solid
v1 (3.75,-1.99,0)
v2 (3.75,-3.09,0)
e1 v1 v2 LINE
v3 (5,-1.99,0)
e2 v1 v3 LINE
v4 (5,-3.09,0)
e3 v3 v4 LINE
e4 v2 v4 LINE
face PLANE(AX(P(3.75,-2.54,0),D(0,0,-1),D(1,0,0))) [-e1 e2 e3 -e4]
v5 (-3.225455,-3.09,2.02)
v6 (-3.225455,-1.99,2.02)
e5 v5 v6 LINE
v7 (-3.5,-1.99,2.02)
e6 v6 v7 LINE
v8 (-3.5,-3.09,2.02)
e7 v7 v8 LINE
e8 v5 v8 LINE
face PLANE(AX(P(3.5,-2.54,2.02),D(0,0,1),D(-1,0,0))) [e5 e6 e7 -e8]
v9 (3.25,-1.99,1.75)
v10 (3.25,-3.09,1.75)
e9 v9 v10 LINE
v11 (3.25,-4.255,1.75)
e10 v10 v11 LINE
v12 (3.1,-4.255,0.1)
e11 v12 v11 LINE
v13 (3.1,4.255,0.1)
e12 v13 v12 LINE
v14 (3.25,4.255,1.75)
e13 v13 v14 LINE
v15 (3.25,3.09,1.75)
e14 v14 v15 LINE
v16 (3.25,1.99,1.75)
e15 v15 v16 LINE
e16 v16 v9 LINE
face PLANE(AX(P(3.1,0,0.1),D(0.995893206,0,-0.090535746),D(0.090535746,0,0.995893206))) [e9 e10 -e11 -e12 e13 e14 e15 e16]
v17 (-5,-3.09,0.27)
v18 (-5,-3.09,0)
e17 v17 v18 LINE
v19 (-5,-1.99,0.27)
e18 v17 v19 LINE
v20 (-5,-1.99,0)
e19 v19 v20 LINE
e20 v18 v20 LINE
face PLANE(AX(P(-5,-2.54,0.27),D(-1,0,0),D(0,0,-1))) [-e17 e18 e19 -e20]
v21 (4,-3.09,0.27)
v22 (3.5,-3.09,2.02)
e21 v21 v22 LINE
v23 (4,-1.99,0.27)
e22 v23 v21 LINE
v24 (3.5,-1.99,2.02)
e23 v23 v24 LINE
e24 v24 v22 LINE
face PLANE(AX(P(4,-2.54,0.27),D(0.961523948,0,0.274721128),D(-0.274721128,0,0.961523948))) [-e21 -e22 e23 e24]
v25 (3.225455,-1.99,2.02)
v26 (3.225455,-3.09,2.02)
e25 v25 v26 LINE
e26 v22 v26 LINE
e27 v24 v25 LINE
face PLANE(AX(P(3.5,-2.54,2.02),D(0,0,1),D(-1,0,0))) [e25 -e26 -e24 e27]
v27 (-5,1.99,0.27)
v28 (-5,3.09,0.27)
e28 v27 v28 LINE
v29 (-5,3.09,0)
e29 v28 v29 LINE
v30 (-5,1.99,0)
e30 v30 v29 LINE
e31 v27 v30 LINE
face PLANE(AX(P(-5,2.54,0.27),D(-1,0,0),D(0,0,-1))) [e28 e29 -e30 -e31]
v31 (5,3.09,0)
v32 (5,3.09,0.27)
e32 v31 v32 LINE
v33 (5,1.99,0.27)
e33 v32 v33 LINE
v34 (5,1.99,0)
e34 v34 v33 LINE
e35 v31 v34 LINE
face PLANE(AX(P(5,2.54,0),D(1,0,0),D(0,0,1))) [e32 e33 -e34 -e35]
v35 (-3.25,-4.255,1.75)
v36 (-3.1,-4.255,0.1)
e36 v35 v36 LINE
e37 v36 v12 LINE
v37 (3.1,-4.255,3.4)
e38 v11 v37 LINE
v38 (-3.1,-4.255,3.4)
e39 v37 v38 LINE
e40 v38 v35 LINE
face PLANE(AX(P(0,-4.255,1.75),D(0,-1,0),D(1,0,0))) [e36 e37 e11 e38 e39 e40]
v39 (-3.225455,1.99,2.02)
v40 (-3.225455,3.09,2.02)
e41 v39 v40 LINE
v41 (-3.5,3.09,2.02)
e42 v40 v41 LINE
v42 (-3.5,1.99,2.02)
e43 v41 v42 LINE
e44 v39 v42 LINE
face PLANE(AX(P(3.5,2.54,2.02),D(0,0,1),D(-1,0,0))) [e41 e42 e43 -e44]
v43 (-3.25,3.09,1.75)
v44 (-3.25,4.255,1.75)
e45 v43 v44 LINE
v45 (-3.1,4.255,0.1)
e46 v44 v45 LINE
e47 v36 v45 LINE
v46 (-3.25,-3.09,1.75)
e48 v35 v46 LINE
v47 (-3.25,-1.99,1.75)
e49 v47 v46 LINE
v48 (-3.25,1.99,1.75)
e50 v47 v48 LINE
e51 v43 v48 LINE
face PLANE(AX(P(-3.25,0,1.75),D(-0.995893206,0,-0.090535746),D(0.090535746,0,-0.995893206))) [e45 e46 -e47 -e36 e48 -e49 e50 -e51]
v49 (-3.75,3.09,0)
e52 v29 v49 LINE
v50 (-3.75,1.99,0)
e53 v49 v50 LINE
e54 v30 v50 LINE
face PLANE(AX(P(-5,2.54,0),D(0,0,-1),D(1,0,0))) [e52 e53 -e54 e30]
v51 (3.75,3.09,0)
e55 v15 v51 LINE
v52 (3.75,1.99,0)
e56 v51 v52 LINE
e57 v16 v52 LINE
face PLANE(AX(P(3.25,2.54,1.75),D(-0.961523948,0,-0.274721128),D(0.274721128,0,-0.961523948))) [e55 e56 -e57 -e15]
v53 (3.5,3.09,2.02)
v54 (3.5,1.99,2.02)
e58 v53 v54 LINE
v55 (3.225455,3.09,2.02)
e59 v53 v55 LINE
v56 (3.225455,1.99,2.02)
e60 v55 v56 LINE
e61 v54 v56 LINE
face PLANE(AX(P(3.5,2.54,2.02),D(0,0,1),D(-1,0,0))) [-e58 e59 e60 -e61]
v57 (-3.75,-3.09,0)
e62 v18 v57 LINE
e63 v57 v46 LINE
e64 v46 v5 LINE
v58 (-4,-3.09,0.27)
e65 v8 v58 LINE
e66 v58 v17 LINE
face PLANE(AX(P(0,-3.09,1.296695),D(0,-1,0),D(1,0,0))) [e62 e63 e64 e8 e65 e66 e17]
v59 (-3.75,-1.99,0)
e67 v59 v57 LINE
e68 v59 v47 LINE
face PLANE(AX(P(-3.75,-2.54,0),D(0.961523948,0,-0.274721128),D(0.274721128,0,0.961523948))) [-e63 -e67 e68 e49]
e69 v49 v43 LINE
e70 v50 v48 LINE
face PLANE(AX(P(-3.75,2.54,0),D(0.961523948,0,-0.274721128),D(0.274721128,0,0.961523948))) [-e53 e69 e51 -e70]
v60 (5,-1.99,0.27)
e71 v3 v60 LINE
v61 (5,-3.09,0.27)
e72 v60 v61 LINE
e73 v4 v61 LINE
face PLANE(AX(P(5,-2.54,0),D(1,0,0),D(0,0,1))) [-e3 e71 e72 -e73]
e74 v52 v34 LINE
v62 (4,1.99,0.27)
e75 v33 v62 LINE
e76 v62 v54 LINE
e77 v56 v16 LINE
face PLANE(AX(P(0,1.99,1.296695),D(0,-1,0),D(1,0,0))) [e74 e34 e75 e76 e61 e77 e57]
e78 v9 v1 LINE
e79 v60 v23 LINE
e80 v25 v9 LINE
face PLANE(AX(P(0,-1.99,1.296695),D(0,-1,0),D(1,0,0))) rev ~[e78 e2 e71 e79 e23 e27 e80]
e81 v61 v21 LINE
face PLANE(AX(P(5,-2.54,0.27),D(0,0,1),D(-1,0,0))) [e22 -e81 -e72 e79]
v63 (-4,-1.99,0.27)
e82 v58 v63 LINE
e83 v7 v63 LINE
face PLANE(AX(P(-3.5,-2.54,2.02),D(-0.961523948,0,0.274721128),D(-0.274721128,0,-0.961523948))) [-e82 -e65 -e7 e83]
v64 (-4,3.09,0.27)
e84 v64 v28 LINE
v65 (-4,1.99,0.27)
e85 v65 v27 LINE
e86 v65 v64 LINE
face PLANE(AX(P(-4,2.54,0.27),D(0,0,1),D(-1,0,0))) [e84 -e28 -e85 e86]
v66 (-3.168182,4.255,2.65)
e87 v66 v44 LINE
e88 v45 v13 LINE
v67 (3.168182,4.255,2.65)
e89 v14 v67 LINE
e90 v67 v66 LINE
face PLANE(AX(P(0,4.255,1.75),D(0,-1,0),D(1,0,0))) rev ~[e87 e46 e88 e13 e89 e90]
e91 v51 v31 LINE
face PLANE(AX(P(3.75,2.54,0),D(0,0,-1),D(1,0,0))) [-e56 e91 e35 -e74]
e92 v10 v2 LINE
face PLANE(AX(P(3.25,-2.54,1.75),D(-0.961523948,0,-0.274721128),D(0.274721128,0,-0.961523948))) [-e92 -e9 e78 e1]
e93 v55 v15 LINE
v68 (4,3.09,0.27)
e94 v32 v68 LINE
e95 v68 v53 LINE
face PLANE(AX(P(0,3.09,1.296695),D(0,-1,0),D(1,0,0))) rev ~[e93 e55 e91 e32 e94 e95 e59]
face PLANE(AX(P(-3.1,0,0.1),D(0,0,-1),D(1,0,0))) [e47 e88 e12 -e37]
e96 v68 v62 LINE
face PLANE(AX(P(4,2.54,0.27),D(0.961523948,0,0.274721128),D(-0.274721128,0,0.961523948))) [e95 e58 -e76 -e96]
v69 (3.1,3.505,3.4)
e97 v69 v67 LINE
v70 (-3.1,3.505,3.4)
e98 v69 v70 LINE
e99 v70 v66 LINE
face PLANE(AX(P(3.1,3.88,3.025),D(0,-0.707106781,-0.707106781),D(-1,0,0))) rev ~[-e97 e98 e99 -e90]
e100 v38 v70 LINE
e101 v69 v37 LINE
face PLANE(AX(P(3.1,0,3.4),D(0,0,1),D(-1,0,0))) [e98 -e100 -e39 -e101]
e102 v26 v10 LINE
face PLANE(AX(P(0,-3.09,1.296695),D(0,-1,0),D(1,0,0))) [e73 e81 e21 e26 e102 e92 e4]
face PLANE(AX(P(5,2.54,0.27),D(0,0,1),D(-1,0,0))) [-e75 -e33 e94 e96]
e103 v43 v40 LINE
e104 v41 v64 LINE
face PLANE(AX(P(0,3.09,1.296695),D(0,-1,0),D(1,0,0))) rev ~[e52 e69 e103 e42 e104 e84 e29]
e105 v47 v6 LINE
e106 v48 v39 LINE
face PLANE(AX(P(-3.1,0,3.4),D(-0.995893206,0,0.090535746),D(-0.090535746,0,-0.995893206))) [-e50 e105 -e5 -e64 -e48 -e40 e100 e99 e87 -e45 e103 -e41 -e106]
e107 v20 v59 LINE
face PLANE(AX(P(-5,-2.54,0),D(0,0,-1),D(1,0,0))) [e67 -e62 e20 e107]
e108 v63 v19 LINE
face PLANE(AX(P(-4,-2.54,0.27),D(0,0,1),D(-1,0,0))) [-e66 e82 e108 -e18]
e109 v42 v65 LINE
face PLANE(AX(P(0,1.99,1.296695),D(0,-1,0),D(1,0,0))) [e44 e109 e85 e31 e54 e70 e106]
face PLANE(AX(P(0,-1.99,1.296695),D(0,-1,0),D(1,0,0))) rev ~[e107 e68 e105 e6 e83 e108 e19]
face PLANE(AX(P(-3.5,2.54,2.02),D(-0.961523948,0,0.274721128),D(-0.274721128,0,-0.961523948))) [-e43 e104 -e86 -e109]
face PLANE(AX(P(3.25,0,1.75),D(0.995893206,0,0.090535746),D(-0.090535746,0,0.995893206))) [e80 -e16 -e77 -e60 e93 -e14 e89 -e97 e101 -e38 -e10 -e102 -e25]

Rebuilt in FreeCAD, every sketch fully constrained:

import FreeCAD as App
import Part
import Sketcher


def edges_at(feature, points):
    """Names of the edges that pass closest to the given points."""
    edges = feature.Shape.Edges
    near = lambda p: min(range(len(edges)), key=lambda i: edges[i].distToShape(Part.Vertex(*p))[0])
    return sorted({f"Edge{near(p) + 1}" for p in points})


def add_polygon(sketch, points):
    """Adds a closed chain of lines whose ends are joined by coincident constraints."""
    first, n = sketch.GeometryCount, len(points)
    for a, b in zip(points, points[1:] + points[:1]):
        sketch.addGeometry(Part.LineSegment(App.Vector(*a, 0), App.Vector(*b, 0)), False)
    for i in range(n):
        sketch.addConstraint(Sketcher.Constraint("Coincident", first + i, 2, first + (i + 1) % n, 1))

doc = App.newDocument("Part")
body = doc.addObject("PartDesign::Body", "Body")

sketch1 = doc.addObject("Sketcher::SketchObject", "Sketch")
body.addObject(sketch1)
sketch1.AttachmentSupport = (doc.XZ_Plane, [""])
sketch1.MapMode = "FlatFace"
sketch1.AttachmentOffset = App.Placement(App.Vector(0, 0, 2.54), App.Rotation())
add_polygon(sketch1, [(-5, 0), (-3.75, 0), (-3.25, 1.75), (3.25, 1.75), (3.75, 0), (5, 0), (5, 0.27), (4, 0.27), (3.5, 2.02), (-3.5, 2.02), (-4, 0.27), (-5, 0.27)])
sketch1.addConstraint(Sketcher.Constraint("Horizontal", 0))
sketch1.addConstraint(Sketcher.Constraint("Horizontal", 2))
sketch1.addConstraint(Sketcher.Constraint("Horizontal", 4))
sketch1.addConstraint(Sketcher.Constraint("Vertical", 5))
sketch1.addConstraint(Sketcher.Constraint("Horizontal", 6))
sketch1.addConstraint(Sketcher.Constraint("Horizontal", 8))
sketch1.addConstraint(Sketcher.Constraint("Horizontal", 10))
sketch1.addConstraint(Sketcher.Constraint("Vertical", 11))
sketch1.addConstraint(Sketcher.Constraint("Symmetric", 0, 2, 3, 2, -1, 1))
sketch1.addConstraint(Sketcher.Constraint("Symmetric", 6, 2, 9, 2, -2))
sketch1.addConstraint(Sketcher.Constraint("Symmetric", 4, 2, 11, 2, -2))
sketch1.addConstraint(Sketcher.Constraint("Parallel", 3, 7))
sketch1.addConstraint(Sketcher.Constraint("Parallel", 1, 9))
sketch1.addConstraint(Sketcher.Constraint("Equal", 1, 3))
sketch1.addConstraint(Sketcher.Constraint("Equal", 3, 7))
sketch1.addConstraint(Sketcher.Constraint("DistanceX", 6, 2, 6, 1, 1.0))
sketch1.addConstraint(Sketcher.Constraint("DistanceX", 8, 2, 8, 1, 7.0))
sketch1.addConstraint(Sketcher.Constraint("DistanceX", 2, 1, 2, 2, 6.5))
sketch1.addConstraint(Sketcher.Constraint("DistanceX", -1, 1, 4, 2, 5.0))
sketch1.addConstraint(Sketcher.Constraint("DistanceY", 5, 1, 5, 2, 0.27))
sketch1.addConstraint(Sketcher.Constraint("DistanceY", -1, 1, 1, 2, 1.75))
pad1 = doc.addObject("PartDesign::Pad", "Pad")
body.addObject(pad1)
pad1.Profile = sketch1
pad1.Length = 1.1
pad1.Midplane = True
body2 = doc.addObject("PartDesign::Body", "Body001")

sketch2 = doc.addObject("Sketcher::SketchObject", "Sketch001")
body2.addObject(sketch2)
sketch2.AttachmentSupport = (doc.getObject("XZ_Plane001"), [""])
sketch2.MapMode = "FlatFace"
sketch2.AttachmentOffset = App.Placement(App.Vector(0, 0, -2.54), App.Rotation())
add_polygon(sketch2, [(-5, 0), (-3.75, 0), (-3.25, 1.75), (3.25, 1.75), (3.75, 0), (5, 0), (5, 0.27), (4, 0.27), (3.5, 2.02), (-3.5, 2.02), (-4, 0.27), (-5, 0.27)])
sketch2.addConstraint(Sketcher.Constraint("Horizontal", 0))
sketch2.addConstraint(Sketcher.Constraint("Horizontal", 2))
sketch2.addConstraint(Sketcher.Constraint("Horizontal", 4))
sketch2.addConstraint(Sketcher.Constraint("Vertical", 5))
sketch2.addConstraint(Sketcher.Constraint("Horizontal", 6))
sketch2.addConstraint(Sketcher.Constraint("Horizontal", 8))
sketch2.addConstraint(Sketcher.Constraint("Horizontal", 10))
sketch2.addConstraint(Sketcher.Constraint("Vertical", 11))
sketch2.addConstraint(Sketcher.Constraint("Symmetric", 0, 2, 3, 2, -1, 1))
sketch2.addConstraint(Sketcher.Constraint("Symmetric", 6, 2, 9, 2, -2))
sketch2.addConstraint(Sketcher.Constraint("Symmetric", 4, 2, 11, 2, -2))
sketch2.addConstraint(Sketcher.Constraint("Parallel", 3, 7))
sketch2.addConstraint(Sketcher.Constraint("Parallel", 1, 9))
sketch2.addConstraint(Sketcher.Constraint("Equal", 1, 3))
sketch2.addConstraint(Sketcher.Constraint("Equal", 3, 7))
sketch2.addConstraint(Sketcher.Constraint("DistanceX", 6, 2, 6, 1, 1.0))
sketch2.addConstraint(Sketcher.Constraint("DistanceX", 8, 2, 8, 1, 7.0))
sketch2.addConstraint(Sketcher.Constraint("DistanceX", 2, 1, 2, 2, 6.5))
sketch2.addConstraint(Sketcher.Constraint("DistanceX", -1, 1, 4, 2, 5.0))
sketch2.addConstraint(Sketcher.Constraint("DistanceY", 5, 1, 5, 2, 0.27))
sketch2.addConstraint(Sketcher.Constraint("DistanceY", -1, 1, 1, 2, 1.75))
pad2 = doc.addObject("PartDesign::Pad", "Pad001")
body2.addObject(pad2)
pad2.Profile = sketch2
pad2.Length = 1.1
pad2.Midplane = True
body3 = doc.addObject("PartDesign::Body", "Body002")

sketch3 = doc.addObject("Sketcher::SketchObject", "Sketch002")
body3.addObject(sketch3)
sketch3.AttachmentSupport = (doc.getObject("XZ_Plane002"), [""])
sketch3.MapMode = "FlatFace"
add_polygon(sketch3, [(-3.1, 0.1), (3.1, 0.1), (3.2, 1.8), (3.1, 3.4), (-3.1, 3.4), (-3.2, 1.8)])
sketch3.addConstraint(Sketcher.Constraint("Horizontal", 0))
sketch3.addConstraint(Sketcher.Constraint("Horizontal", 3))
sketch3.addConstraint(Sketcher.Constraint("Symmetric", 1, 2, 4, 2, -2))
sketch3.addConstraint(Sketcher.Constraint("Parallel", 1, 4))
sketch3.addConstraint(Sketcher.Constraint("Parallel", 2, 5))
sketch3.addConstraint(Sketcher.Constraint("Vertical", 0, 2, 2, 2))
sketch3.addConstraint(Sketcher.Constraint("Vertical", 3, 2, 5, 2))
sketch3.addConstraint(Sketcher.Constraint("DistanceX", 0, 1, 0, 2, 6.2))
sketch3.addConstraint(Sketcher.Constraint("DistanceY", -1, 1, 0, 2, 0.1))
sketch3.addConstraint(Sketcher.Constraint("DistanceY", -1, 1, 2, 2, 3.4))
sketch3.addConstraint(Sketcher.Constraint("DistanceX", 4, 2, 1, 2, 6.5))
pad3 = doc.addObject("PartDesign::Pad", "Pad002")
body3.addObject(pad3)
pad3.Profile = sketch3
pad3.Length = 8.51
pad3.Midplane = True
doc.recompute()

chamfer = doc.addObject("PartDesign::Chamfer", "Chamfer")
body3.addObject(chamfer)
chamfer.Base = (pad3, edges_at(pad3, [(0, 4.255, 3.4)]))
chamfer.Size = 0.75
doc.recompute()

boolean = doc.addObject("PartDesign::Boolean", "Boolean")
body3.addObject(boolean)
boolean.Type = "Fuse"
boolean.addObjects([body])
doc.recompute()

boolean2 = doc.addObject("PartDesign::Boolean", "Boolean001")
body3.addObject(boolean2)
boolean2.Type = "Fuse"
boolean2.addObjects([body2])

doc.recompute()
